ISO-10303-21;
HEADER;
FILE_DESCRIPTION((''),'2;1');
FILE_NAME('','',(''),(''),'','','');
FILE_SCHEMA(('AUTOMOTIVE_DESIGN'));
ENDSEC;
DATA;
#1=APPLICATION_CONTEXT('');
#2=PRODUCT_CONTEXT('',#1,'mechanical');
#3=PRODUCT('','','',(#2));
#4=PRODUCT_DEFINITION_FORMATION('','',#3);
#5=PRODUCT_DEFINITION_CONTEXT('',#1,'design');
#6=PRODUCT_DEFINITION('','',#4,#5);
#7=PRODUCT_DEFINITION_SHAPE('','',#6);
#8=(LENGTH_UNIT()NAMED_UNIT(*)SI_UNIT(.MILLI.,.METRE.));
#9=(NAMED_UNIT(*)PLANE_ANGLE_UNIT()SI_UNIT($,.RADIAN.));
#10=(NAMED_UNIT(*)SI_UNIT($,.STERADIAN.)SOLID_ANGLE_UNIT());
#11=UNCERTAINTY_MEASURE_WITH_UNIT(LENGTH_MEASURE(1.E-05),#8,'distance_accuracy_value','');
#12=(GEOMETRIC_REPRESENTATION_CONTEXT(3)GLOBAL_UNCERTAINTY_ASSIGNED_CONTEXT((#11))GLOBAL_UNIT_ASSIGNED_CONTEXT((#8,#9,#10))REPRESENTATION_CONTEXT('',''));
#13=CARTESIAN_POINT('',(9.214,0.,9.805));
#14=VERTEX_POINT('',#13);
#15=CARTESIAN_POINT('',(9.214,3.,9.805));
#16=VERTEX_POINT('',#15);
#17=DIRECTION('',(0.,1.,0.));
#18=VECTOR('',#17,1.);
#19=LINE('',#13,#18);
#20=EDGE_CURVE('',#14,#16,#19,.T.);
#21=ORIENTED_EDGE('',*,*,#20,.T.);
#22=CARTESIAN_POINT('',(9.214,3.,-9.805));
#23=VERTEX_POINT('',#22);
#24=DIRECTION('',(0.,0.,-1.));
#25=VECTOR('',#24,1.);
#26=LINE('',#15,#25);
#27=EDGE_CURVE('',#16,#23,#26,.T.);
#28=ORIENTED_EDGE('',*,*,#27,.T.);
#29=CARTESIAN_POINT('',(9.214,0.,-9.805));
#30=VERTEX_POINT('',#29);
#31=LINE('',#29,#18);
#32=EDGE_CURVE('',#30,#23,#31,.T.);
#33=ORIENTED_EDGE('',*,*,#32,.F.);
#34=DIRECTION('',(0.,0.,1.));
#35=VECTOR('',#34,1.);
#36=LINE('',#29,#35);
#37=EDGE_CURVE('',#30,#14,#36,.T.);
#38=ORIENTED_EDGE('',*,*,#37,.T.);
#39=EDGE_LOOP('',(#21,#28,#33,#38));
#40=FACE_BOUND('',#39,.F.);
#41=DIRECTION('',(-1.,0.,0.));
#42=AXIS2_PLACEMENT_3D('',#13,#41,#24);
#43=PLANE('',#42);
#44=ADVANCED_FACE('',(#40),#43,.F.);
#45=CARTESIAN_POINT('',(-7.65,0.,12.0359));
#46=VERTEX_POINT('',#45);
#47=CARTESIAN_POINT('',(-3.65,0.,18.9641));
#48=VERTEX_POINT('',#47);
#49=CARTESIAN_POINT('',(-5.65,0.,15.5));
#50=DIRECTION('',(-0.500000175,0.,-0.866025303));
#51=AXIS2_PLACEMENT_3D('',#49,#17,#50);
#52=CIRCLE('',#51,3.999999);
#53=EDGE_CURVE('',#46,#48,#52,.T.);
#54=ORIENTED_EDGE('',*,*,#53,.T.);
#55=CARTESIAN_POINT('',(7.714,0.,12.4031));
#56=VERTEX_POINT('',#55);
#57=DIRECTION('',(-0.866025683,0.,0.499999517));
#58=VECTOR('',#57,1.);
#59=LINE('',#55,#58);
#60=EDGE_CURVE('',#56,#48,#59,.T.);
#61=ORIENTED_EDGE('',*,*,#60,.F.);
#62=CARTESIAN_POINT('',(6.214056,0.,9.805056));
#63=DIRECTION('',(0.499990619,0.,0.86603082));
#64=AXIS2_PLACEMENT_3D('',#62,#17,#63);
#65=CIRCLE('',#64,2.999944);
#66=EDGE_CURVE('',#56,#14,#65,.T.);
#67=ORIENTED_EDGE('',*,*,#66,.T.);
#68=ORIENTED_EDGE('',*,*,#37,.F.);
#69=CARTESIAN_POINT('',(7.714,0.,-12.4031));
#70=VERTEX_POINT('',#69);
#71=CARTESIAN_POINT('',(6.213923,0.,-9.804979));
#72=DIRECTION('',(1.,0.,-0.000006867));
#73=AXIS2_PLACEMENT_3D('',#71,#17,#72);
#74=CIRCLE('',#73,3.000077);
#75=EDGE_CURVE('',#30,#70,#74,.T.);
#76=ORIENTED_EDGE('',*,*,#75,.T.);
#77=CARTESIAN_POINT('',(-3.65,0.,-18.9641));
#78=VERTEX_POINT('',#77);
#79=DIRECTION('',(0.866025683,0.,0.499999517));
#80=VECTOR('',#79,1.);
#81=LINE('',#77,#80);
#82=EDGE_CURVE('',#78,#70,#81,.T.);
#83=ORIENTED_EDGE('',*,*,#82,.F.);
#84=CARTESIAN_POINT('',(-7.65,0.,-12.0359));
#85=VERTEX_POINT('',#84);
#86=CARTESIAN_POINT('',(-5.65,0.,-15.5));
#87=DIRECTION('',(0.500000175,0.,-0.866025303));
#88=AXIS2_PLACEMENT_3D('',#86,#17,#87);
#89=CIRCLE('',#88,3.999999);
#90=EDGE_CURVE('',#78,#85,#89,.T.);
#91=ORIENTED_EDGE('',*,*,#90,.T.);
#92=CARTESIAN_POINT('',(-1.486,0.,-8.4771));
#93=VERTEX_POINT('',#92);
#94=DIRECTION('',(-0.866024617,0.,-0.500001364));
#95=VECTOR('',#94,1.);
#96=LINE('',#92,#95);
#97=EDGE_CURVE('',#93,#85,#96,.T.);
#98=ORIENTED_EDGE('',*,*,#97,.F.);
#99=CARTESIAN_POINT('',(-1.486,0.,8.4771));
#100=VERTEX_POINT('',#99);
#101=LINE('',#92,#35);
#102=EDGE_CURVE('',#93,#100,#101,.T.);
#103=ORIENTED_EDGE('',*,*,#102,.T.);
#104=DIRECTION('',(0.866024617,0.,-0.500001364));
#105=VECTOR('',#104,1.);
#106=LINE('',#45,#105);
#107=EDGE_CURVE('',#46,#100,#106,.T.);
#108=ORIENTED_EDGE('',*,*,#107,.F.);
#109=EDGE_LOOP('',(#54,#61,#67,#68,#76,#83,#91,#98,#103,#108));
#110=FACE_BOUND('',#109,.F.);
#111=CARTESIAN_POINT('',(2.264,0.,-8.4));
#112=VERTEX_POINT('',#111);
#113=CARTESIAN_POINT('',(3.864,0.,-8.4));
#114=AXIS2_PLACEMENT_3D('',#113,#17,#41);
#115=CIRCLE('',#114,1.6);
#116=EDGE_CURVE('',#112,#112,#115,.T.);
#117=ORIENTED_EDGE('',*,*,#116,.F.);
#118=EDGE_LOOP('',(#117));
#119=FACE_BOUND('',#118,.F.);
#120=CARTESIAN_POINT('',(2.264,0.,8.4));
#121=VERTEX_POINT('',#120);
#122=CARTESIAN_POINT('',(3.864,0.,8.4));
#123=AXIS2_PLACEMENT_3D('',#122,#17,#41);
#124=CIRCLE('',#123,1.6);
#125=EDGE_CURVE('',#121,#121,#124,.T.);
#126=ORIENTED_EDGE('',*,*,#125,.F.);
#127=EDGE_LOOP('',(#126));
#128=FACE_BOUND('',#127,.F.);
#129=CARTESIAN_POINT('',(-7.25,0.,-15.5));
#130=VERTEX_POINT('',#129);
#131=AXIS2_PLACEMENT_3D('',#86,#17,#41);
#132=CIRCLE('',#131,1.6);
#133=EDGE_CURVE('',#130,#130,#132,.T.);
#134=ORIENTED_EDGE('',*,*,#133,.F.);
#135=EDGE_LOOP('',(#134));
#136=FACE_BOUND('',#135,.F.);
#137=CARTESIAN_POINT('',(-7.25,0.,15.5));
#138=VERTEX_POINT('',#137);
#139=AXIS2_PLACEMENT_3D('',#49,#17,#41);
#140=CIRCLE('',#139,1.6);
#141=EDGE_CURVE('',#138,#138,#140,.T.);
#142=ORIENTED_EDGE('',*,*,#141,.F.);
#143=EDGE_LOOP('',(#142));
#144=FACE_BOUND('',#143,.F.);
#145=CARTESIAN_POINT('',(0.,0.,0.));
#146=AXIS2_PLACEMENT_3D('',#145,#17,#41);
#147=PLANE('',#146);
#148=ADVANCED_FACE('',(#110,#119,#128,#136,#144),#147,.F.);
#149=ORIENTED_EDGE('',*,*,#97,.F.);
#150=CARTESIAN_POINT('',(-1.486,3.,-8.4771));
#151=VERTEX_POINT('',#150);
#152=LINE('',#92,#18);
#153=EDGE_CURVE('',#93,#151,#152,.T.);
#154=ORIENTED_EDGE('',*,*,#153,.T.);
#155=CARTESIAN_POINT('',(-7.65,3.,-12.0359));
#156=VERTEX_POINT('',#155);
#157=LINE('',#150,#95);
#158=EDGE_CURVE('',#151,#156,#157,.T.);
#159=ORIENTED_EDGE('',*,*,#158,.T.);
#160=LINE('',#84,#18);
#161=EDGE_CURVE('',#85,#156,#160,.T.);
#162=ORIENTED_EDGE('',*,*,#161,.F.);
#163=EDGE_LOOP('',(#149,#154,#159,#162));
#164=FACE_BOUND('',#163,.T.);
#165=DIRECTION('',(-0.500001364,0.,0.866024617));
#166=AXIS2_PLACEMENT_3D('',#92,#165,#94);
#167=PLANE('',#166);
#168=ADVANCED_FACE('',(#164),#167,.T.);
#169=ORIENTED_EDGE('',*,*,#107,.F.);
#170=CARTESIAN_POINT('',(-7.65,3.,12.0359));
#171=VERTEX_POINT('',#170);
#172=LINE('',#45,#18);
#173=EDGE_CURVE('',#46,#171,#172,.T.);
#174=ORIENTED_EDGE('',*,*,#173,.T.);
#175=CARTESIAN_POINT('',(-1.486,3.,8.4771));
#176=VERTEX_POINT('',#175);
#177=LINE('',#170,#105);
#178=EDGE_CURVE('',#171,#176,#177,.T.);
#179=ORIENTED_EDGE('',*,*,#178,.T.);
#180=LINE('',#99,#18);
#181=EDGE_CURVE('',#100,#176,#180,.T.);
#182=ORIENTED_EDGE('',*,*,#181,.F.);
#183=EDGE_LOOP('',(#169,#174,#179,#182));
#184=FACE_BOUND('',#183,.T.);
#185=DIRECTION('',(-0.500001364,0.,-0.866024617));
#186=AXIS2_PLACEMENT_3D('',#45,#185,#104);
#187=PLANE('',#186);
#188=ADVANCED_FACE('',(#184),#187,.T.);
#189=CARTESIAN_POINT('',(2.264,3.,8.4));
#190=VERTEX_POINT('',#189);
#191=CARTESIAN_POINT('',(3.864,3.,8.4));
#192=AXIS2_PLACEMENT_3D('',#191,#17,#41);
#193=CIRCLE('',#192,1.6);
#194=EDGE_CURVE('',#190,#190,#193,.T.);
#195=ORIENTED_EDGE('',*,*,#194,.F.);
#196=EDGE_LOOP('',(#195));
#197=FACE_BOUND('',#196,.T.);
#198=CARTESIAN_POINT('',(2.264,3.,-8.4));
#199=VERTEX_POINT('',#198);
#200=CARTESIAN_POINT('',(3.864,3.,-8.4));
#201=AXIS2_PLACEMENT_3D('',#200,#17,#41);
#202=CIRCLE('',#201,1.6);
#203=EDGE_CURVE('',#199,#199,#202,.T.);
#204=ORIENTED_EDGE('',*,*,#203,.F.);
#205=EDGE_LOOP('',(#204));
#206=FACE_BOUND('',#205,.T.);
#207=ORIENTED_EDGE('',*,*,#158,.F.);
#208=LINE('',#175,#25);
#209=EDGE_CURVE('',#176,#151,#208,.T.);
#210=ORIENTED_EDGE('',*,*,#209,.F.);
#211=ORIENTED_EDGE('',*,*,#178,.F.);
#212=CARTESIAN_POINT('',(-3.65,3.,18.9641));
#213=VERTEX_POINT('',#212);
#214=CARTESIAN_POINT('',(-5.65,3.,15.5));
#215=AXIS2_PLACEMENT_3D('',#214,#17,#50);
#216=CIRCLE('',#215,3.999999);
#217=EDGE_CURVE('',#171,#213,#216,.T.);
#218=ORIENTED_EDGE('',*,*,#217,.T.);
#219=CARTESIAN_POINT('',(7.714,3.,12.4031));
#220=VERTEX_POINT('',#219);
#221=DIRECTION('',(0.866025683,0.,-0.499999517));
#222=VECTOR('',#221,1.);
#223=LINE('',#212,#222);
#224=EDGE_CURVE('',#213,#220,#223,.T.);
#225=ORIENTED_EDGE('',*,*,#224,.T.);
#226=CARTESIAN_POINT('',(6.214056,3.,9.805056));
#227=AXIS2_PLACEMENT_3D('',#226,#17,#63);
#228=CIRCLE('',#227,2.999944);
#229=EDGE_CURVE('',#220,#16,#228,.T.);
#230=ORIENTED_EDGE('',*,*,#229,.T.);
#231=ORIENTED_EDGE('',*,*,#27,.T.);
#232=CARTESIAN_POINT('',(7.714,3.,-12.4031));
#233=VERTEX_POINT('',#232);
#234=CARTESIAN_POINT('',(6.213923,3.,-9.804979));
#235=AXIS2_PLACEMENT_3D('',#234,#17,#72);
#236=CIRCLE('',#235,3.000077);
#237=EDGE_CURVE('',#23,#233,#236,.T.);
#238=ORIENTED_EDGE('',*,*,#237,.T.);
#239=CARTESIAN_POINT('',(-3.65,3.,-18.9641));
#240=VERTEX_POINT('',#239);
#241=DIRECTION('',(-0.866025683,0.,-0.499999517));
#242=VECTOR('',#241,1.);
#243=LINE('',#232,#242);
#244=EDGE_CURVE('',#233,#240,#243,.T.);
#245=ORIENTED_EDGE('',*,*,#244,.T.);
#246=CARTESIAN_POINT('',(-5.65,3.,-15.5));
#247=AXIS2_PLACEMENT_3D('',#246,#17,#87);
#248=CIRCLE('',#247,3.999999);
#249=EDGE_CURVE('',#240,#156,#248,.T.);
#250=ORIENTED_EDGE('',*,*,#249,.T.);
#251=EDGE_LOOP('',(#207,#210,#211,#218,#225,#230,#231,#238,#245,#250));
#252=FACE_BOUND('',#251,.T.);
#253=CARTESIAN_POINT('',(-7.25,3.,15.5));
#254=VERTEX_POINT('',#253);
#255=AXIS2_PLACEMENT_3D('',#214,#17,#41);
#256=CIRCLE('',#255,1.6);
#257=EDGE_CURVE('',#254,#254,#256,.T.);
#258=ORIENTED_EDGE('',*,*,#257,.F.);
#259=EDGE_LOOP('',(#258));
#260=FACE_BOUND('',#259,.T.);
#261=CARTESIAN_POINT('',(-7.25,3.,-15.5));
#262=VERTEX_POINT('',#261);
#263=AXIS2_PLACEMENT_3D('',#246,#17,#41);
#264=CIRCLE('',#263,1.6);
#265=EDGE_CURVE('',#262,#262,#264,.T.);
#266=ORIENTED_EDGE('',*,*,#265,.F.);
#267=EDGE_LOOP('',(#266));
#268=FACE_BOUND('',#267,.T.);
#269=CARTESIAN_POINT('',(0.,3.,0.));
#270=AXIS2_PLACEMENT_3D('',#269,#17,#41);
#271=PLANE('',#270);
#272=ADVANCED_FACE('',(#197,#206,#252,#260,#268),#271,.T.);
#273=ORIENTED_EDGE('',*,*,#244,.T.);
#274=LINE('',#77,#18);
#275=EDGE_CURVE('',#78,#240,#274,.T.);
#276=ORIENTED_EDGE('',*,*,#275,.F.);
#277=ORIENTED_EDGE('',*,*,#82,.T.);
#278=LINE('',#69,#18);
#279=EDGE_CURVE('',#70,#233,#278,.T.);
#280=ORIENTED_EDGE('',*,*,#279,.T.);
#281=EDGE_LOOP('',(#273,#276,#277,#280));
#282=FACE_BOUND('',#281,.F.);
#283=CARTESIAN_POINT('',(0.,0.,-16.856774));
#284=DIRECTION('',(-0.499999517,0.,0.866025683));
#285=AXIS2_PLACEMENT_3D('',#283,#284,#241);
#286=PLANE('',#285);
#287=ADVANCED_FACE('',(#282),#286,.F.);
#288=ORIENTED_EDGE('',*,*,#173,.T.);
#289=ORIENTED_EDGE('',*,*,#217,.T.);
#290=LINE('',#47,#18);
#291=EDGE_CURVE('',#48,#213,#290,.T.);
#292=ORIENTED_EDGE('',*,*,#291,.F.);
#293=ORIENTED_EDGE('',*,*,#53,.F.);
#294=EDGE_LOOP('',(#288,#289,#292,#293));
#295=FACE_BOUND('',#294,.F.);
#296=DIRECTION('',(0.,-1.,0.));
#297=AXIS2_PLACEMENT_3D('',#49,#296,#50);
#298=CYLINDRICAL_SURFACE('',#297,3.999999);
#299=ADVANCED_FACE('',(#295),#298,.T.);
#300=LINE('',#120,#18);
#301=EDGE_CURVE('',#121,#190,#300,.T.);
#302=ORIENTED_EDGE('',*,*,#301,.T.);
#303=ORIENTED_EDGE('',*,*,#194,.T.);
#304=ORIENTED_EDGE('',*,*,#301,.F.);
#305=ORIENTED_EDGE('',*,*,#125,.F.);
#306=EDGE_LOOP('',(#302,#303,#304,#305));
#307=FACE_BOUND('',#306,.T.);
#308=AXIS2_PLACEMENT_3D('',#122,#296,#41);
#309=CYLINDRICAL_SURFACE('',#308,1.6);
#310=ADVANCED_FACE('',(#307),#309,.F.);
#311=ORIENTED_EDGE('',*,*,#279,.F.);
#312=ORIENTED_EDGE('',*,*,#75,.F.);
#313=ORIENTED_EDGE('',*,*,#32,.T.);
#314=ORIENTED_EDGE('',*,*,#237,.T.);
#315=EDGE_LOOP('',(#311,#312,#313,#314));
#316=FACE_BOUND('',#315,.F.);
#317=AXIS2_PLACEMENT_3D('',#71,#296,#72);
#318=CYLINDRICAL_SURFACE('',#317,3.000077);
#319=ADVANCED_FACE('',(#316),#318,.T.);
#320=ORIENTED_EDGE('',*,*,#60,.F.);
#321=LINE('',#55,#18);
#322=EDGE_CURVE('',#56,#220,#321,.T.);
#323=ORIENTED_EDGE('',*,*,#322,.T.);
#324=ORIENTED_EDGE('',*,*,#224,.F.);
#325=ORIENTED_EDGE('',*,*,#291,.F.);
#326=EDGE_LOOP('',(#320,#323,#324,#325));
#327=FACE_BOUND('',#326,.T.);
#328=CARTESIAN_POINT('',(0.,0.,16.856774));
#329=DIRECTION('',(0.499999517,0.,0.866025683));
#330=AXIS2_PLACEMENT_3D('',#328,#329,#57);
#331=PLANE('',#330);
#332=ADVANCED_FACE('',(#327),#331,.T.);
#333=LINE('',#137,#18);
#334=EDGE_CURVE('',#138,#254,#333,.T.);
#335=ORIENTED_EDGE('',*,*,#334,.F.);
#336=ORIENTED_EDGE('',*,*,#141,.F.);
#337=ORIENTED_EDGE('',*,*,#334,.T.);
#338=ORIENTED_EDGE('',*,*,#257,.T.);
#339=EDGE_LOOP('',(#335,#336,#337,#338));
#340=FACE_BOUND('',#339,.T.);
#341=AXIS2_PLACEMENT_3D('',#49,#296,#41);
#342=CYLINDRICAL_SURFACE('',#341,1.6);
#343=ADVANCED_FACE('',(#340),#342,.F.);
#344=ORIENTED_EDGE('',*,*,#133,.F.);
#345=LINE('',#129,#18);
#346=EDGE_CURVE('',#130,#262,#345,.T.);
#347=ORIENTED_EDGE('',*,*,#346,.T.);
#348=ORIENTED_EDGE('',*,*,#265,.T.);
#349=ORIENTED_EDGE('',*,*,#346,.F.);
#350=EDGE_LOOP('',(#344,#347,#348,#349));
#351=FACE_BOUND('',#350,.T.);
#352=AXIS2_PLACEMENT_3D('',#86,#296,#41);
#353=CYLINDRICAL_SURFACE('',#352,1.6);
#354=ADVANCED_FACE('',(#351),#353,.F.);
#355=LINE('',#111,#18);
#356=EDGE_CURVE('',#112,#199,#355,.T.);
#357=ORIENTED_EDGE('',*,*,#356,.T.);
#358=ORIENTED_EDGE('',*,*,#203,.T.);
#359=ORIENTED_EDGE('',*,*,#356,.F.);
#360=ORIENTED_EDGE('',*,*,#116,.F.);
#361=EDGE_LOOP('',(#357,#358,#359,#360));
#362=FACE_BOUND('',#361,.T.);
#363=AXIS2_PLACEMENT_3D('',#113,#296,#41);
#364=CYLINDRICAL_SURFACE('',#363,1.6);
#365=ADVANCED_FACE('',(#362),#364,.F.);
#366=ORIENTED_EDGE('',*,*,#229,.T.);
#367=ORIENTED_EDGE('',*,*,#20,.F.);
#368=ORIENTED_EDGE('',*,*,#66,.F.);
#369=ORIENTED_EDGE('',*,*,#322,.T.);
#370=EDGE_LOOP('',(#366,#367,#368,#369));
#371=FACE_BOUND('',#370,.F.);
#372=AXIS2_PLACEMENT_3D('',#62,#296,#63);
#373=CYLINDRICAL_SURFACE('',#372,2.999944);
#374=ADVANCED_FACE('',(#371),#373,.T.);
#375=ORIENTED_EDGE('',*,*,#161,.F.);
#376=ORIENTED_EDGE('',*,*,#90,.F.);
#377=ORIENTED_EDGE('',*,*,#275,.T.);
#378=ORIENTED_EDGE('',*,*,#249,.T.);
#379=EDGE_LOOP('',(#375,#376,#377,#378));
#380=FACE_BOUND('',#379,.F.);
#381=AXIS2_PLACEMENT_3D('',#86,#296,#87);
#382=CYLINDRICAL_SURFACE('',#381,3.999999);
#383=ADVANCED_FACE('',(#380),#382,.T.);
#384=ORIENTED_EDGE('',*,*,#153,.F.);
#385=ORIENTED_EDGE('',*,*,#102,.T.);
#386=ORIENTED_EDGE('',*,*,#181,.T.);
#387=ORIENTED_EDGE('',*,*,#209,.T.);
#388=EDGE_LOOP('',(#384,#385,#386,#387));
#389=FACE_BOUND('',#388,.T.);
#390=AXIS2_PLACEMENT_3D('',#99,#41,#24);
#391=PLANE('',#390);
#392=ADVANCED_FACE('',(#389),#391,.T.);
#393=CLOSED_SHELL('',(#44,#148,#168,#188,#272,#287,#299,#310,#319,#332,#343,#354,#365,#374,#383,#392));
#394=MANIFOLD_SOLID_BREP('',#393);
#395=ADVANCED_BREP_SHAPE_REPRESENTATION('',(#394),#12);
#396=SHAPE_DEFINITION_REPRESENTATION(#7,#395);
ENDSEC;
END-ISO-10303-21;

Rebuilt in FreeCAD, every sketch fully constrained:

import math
import FreeCAD as App
import Part
import Sketcher
Q = App.Units.Quantity

doc = App.newDocument("Part")
body = doc.addObject("PartDesign::Body", "Body")

# Sketch on XZ plane
sketch1 = body.newObject("Sketcher::SketchObject", "Sketch")
sketch1.AttachmentSupport = (doc.getObject("XZ_Plane"), [""])
sketch1.MapMode = "FlatFace"
sketch1.addGeometry([
    Part.LineSegment(App.Vector(-1.5, 8.5, 0), App.Vector(-7.7, 12, 0)),  # 0
    Part.ArcOfCircle(Part.Circle(App.Vector(-5.7, 15.5, 0), App.Vector(0, 0, 1), 4), math.radians(60), math.radians(240)),  # 1
    Part.LineSegment(App.Vector(-3.6, 19, 0), App.Vector(7.7, 12.4, 0)),  # 2
    Part.ArcOfCircle(Part.Circle(App.Vector(6.2, 9.8, 0), App.Vector(0, 0, 1), 3), math.radians(0), math.radians(60)),  # 3
    Part.LineSegment(App.Vector(9.2, 9.8, 0), App.Vector(9.2, -9.8, 0)),  # 4
    Part.ArcOfCircle(Part.Circle(App.Vector(6.2, -9.8, 0), App.Vector(0, 0, 1), 3), math.radians(-60), math.radians(0)),  # 5
    Part.LineSegment(App.Vector(7.7, -12.4, 0), App.Vector(-3.6, -19, 0)),  # 6
    Part.ArcOfCircle(Part.Circle(App.Vector(-5.7, -15.5, 0), App.Vector(0, 0, 1), 4), math.radians(120), math.radians(300)),  # 7
    Part.LineSegment(App.Vector(-7.7, -12, 0), App.Vector(-1.5, -8.5, 0)),  # 8
    Part.LineSegment(App.Vector(-1.5, -8.5, 0), App.Vector(-1.5, 8.5, 0)),  # 9
    Part.Circle(App.Vector(-5.7, 15.5, 0), App.Vector(0, 0, 1), 1.6),  # 10
    Part.Circle(App.Vector(-5.7, -15.5, 0), App.Vector(0, 0, 1), 1.6),  # 11
    Part.Circle(App.Vector(3.9, 8.4, 0), App.Vector(0, 0, 1), 1.6),  # 12
    Part.Circle(App.Vector(3.9, -8.4, 0), App.Vector(0, 0, 1), 1.6),  # 13
], False)
sketch1.addConstraint([
    Sketcher.Constraint("Tangent", 0, 2, 1, 2),
    Sketcher.Constraint("Tangent", 1, 1, 2, 1),
    Sketcher.Constraint("Tangent", 2, 2, 3, 2),
    Sketcher.Constraint("Tangent", 3, 1, 4, 1),
    Sketcher.Constraint("Tangent", 4, 2, 5, 2),
    Sketcher.Constraint("Tangent", 5, 1, 6, 1),
    Sketcher.Constraint("Tangent", 6, 2, 7, 2),
    Sketcher.Constraint("Tangent", 7, 1, 8, 1),
    Sketcher.Constraint("Coincident", 8, 2, 9, 1),
    Sketcher.Constraint("Coincident", 9, 2, 0, 1),
    Sketcher.Constraint("Vertical", 4),
    Sketcher.Constraint("Vertical", 9),
    Sketcher.Constraint("Coincident", 10, 3, 1, 3),
    Sketcher.Constraint("Coincident", 11, 3, 7, 3),
    Sketcher.Constraint("Equal", 3, 5),
    Sketcher.Constraint("Equal", 1, 7),
    Sketcher.Constraint("Equal", 10, 11),
    Sketcher.Constraint("Equal", 11, 12),
    Sketcher.Constraint("Equal", 12, 13),
    Sketcher.Constraint("Symmetric", 1, 3, 7, 3, -1),
    Sketcher.Constraint("Symmetric", 12, 3, 13, 3, -1),
    Sketcher.Constraint("Parallel", 0, 2),
    Sketcher.Constraint("Parallel", 6, 8),
    Sketcher.Constraint("Vertical", 2, 2, 5, 1),
    Sketcher.Constraint("Radius", 1, Q("4 mm")),
    Sketcher.Constraint("Radius", 3, Q("3 mm")),
    Sketcher.Constraint("Diameter", 10, Q("3.2 mm")),
    Sketcher.Constraint("DistanceY", 7, 3, 1, 3, Q("31 mm")),
    Sketcher.Constraint("DistanceY", -1, 1, 12, 3, Q("8.4 mm")),
    Sketcher.Constraint("DistanceX", 1, 3, -1, 1, Q("5.65 mm")),
    Sketcher.Constraint("Angle", 0, Q("150 deg")),
    Sketcher.Constraint("DistanceX", -1, 1, 12, 3, Q("3.864 mm")),
    Sketcher.Constraint("DistanceY", 4, 2, 4, 1, Q("19.61 mm")),
    Sketcher.Constraint("DistanceX", 8, 2, 5, 3, Q("7.7 mm")),
])
pad1 = body.newObject("PartDesign::Pad", "Pad")
pad1.Profile = sketch1
pad1.Length = 3
pad1.Reversed = True

doc.recompute()
